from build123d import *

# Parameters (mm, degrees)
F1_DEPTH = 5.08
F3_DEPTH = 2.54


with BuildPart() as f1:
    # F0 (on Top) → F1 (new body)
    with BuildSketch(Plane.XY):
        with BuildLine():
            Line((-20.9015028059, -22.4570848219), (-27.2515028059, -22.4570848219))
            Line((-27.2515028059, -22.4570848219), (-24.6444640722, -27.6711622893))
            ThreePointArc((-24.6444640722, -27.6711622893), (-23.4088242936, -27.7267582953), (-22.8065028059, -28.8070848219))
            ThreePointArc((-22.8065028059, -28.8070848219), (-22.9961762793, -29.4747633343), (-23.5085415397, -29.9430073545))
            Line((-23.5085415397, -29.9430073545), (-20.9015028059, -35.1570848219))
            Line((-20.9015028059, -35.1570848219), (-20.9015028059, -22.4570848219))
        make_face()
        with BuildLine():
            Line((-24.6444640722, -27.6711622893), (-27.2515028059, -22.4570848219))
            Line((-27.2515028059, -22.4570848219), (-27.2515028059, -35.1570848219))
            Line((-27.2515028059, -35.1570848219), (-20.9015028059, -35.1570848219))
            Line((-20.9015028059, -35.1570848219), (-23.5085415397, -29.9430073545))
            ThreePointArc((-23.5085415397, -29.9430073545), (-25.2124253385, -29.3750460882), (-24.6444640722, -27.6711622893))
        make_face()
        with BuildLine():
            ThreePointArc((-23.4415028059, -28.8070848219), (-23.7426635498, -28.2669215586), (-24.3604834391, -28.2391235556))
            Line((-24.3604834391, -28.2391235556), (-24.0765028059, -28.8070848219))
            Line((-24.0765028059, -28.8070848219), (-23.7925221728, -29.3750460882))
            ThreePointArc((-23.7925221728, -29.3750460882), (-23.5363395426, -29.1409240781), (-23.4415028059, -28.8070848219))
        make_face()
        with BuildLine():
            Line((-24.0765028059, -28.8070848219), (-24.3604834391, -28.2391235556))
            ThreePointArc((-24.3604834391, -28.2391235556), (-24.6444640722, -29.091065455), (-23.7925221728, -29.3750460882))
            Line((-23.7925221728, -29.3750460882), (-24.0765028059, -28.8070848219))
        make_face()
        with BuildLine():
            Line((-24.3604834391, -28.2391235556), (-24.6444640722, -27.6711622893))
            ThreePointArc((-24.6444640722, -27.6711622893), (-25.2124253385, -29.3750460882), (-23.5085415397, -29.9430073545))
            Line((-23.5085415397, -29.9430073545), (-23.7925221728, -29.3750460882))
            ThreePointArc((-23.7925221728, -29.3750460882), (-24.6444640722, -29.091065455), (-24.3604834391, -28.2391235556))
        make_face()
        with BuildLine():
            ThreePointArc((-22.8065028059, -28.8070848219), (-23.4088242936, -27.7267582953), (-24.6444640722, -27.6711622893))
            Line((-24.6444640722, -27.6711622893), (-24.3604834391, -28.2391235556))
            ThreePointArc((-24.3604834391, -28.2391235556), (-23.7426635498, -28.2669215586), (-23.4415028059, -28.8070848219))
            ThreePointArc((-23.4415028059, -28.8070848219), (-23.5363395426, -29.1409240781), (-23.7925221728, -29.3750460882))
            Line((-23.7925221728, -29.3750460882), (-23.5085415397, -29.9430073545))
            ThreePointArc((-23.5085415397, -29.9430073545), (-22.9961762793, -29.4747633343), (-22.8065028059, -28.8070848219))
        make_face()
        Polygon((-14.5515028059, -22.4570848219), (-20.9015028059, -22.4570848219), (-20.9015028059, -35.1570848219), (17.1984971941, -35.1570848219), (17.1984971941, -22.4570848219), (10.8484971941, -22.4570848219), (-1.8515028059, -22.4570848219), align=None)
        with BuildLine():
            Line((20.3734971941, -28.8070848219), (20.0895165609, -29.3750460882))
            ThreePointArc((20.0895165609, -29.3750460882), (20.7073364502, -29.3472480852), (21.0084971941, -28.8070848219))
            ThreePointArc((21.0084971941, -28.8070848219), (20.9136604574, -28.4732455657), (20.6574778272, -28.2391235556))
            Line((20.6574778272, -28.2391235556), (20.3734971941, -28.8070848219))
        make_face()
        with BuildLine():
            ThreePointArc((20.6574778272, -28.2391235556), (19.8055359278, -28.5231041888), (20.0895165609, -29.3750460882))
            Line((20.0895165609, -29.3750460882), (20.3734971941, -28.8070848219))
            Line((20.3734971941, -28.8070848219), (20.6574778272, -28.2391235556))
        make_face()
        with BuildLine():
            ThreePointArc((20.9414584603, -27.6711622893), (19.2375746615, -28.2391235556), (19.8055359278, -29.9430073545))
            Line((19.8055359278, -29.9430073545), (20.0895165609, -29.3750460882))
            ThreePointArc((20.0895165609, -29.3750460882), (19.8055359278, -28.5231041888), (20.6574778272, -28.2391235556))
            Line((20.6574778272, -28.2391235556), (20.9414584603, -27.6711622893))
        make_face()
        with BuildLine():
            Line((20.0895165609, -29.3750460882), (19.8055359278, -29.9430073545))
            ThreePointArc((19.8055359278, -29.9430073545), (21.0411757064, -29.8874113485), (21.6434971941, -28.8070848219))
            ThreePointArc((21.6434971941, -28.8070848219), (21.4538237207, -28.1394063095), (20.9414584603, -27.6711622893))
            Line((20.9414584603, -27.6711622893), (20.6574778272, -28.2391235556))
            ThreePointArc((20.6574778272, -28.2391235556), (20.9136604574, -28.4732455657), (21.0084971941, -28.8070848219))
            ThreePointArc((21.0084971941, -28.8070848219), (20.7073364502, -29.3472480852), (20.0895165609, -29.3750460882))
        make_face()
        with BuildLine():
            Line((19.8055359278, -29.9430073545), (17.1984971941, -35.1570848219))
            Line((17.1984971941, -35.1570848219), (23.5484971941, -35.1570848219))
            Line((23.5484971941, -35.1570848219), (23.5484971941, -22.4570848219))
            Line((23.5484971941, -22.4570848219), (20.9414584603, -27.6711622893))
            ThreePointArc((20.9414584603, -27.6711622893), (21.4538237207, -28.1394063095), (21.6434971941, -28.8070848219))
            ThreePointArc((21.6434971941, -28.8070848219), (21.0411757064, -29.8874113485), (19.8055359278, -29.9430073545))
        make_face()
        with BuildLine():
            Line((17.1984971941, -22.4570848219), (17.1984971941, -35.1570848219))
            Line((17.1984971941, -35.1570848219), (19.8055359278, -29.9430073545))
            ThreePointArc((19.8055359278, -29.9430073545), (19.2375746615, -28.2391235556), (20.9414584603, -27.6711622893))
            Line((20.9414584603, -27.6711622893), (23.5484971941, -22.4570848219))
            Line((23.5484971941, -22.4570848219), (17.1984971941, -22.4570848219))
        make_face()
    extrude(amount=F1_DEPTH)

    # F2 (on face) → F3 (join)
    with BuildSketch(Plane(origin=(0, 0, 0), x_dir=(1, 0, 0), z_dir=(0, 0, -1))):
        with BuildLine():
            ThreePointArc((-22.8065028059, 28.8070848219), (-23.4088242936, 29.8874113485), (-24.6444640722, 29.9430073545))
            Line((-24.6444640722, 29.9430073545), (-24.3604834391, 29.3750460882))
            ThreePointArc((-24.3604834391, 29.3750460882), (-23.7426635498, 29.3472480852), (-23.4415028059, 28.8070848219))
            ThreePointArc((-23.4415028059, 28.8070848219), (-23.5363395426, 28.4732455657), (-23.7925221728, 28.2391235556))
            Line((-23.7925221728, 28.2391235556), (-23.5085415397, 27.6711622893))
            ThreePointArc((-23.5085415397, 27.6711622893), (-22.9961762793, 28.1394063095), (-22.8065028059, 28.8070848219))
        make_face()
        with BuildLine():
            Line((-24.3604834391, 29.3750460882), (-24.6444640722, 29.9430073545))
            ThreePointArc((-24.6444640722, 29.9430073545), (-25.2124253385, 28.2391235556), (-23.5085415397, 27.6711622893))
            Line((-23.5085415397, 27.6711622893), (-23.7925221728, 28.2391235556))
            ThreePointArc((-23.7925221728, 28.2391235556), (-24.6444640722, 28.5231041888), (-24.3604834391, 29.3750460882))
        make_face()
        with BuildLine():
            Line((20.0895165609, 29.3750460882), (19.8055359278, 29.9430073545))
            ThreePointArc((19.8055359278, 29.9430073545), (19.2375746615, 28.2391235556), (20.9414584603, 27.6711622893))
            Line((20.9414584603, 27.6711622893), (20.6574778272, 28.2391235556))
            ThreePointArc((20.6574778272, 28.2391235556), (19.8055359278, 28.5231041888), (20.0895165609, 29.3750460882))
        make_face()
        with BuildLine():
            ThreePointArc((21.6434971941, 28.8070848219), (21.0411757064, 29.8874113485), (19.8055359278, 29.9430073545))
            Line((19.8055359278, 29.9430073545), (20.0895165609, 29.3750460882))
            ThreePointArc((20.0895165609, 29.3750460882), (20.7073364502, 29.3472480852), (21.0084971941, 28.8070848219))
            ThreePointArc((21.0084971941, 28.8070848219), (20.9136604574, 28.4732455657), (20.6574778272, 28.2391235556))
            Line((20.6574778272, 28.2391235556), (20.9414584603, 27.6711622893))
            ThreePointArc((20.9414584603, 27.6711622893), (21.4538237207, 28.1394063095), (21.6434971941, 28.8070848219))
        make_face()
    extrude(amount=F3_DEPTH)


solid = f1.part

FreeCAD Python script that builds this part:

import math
import FreeCAD as App
import Part
import Sketcher

V = App.Vector
Q = App.Units.Quantity

doc = App.newDocument("Part")
body = doc.addObject("PartDesign::Body", "Body")

# Sketch on XY plane
sketch1 = doc.addObject("Sketcher::SketchObject", "Sketch")
body.addObject(sketch1)
sketch1.AttachmentSupport = (doc.XY_Plane, [""])
sketch1.MapMode = "FlatFace"
sketch1.addGeometry(Part.LineSegment(V(-27, -35, 0), V(24, -35, 0)), False)
sketch1.addGeometry(Part.LineSegment(V(24, -35, 0), V(24, -22, 0)), False)
sketch1.addGeometry(Part.LineSegment(V(24, -22, 0), V(-27, -22, 0)), False)
sketch1.addGeometry(Part.LineSegment(V(-27, -22, 0), V(-27, -35, 0)), False)
sketch1.addConstraint(Sketcher.Constraint("Coincident", 0, 2, 1, 1))
sketch1.addConstraint(Sketcher.Constraint("Coincident", 1, 2, 2, 1))
sketch1.addConstraint(Sketcher.Constraint("Coincident", 2, 2, 3, 1))
sketch1.addConstraint(Sketcher.Constraint("Coincident", 3, 2, 0, 1))
sketch1.addConstraint(Sketcher.Constraint("Horizontal", 0))
sketch1.addConstraint(Sketcher.Constraint("Vertical", 1))
sketch1.addConstraint(Sketcher.Constraint("Horizontal", 2))
sketch1.addConstraint(Sketcher.Constraint("Vertical", 3))
sketch1.addConstraint(Sketcher.Constraint("DistanceX", 0, 1, 0, 2, Q("2 in")))
sketch1.addConstraint(Sketcher.Constraint("DistanceY", 1, 1, 1, 2, Q("0.5 in")))
sketch1.addConstraint(Sketcher.Constraint("DistanceX", -1, 1, 0, 2, 23.548497))
sketch1.addConstraint(Sketcher.Constraint("DistanceY", 0, 2, -1, 1, 35.157085))
pad1 = doc.addObject("PartDesign::Pad", "Pad")
body.addObject(pad1)
pad1.Profile = sketch1
pad1.Length = Q("0.2 in")

# Sketch on XY plane
sketch2 = doc.addObject("Sketcher::SketchObject", "Sketch001")
body.addObject(sketch2)
sketch2.AttachmentSupport = (doc.XY_Plane, [""])
sketch2.MapMode = "FlatFace"
sketch2.addGeometry(Part.ArcOfCircle(Part.Circle(V(-24.1, -28.8, 0), V(0, 0, 1), 1.3), math.radians(-117), math.radians(0)), False)
sketch2.addGeometry(Part.ArcOfCircle(Part.Circle(V(-24.1, -28.8, 0), V(0, 0, 1), 1.3), math.radians(63), math.radians(243)), False)
sketch2.addGeometry(Part.ArcOfCircle(Part.Circle(V(-24.1, -28.8, 0), V(0, 0, 1), 1.3), math.radians(0), math.radians(63)), False)
sketch2.addGeometry(Part.ArcOfCircle(Part.Circle(V(-24.1, -28.8, 0), V(0, 0, 1), 0.6), math.radians(-117), math.radians(0)), False)
sketch2.addGeometry(Part.ArcOfCircle(Part.Circle(V(-24.1, -28.8, 0), V(0, 0, 1), 0.6), math.radians(0), math.radians(63)), False)
sketch2.addGeometry(Part.ArcOfCircle(Part.Circle(V(-24.1, -28.8, 0), V(0, 0, 1), 0.6), math.radians(63), math.radians(243)), False)
sketch2.addGeometry(Part.ArcOfCircle(Part.Circle(V(20.4, -28.8, 0), V(0, 0, 1), 1.3), math.radians(63), math.radians(243)), False)
sketch2.addGeometry(Part.ArcOfCircle(Part.Circle(V(20.4, -28.8, 0), V(0, 0, 1), 1.3), math.radians(0), math.radians(63)), False)
sketch2.addGeometry(Part.ArcOfCircle(Part.Circle(V(20.4, -28.8, 0), V(0, 0, 1), 1.3), math.radians(-117), math.radians(0)), False)
sketch2.addGeometry(Part.ArcOfCircle(Part.Circle(V(20.4, -28.8, 0), V(0, 0, 1), 0.6), math.radians(63), math.radians(243)), False)
sketch2.addGeometry(Part.ArcOfCircle(Part.Circle(V(20.4, -28.8, 0), V(0, 0, 1), 0.6), math.radians(-117), math.radians(0)), False)
sketch2.addGeometry(Part.ArcOfCircle(Part.Circle(V(20.4, -28.8, 0), V(0, 0, 1), 0.6), math.radians(0), math.radians(63)), False)
sketch2.addConstraint(Sketcher.Constraint("Tangent", 0, 1, 1, 2))
sketch2.addConstraint(Sketcher.Constraint("Tangent", 1, 1, 2, 2))
sketch2.addConstraint(Sketcher.Constraint("Tangent", 2, 1, 0, 2))
sketch2.addConstraint(Sketcher.Constraint("Tangent", 3, 2, 4, 1))
sketch2.addConstraint(Sketcher.Constraint("Tangent", 4, 2, 5, 1))
sketch2.addConstraint(Sketcher.Constraint("Tangent", 5, 2, 3, 1))
sketch2.addConstraint(Sketcher.Constraint("Tangent", 6, 1, 7, 2))
sketch2.addConstraint(Sketcher.Constraint("Tangent", 7, 1, 8, 2))
sketch2.addConstraint(Sketcher.Constraint("Tangent", 8, 1, 6, 2))
sketch2.addConstraint(Sketcher.Constraint("Tangent", 9, 2, 10, 1))
sketch2.addConstraint(Sketcher.Constraint("Tangent", 10, 2, 11, 1))
sketch2.addConstraint(Sketcher.Constraint("Tangent", 11, 2, 9, 1))
sketch2.addConstraint(Sketcher.Constraint("Coincident", 3, 3, 0, 3))
sketch2.addConstraint(Sketcher.Constraint("Coincident", 9, 3, 6, 3))
sketch2.addConstraint(Sketcher.Constraint("Equal", 2, 6))
sketch2.addConstraint(Sketcher.Constraint("Equal", 5, 9))
sketch2.addConstraint(Sketcher.Constraint("Horizontal", 5, 3, 6, 3))
sketch2.addConstraint(Sketcher.Constraint("Horizontal", 11, 3, 2, 1))
sketch2.addConstraint(Sketcher.Constraint("Horizontal", 2, 1, 3, 2))
sketch2.addConstraint(Sketcher.Constraint("Horizontal", 1, 1, 6, 1))
sketch2.addConstraint(Sketcher.Constraint("Horizontal", 3, 2, 7, 1))
sketch2.addConstraint(Sketcher.Constraint("Horizontal", 0, 1, 8, 1))
sketch2.addConstraint(Sketcher.Constraint("Horizontal", 5, 2, 9, 2))
sketch2.addConstraint(Sketcher.Constraint("Horizontal", 7, 1, 10, 2))
sketch2.addConstraint(Sketcher.Constraint("Horizontal", 4, 2, 11, 2))
sketch2.addConstraint(Sketcher.Constraint("Radius", 0, Q("0.05 in")))
sketch2.addConstraint(Sketcher.Constraint("Radius", 3, Q("0.025 in")))
sketch2.addConstraint(Sketcher.Constraint("DistanceX", 0, 3, 6, 3, Q("1.75 in")))
sketch2.addConstraint(Sketcher.Constraint("DistanceX", 1, 1, -1, 1, 23.508542))
sketch2.addConstraint(Sketcher.Constraint("DistanceX", 0, 1, 0, 3, 0.567961))
sketch2.addConstraint(Sketcher.Constraint("DistanceX", 0, 3, 1, 1, 0.567961))
sketch2.addConstraint(Sketcher.Constraint("DistanceX", 0, 3, 4, 2, 0.283981))
sketch2.addConstraint(Sketcher.Constraint("DistanceX", 5, 2, 0, 3, 0.283981))
sketch2.addConstraint(Sketcher.Constraint("DistanceY", 0, 3, -1, 1, 28.807085))
pad2 = doc.addObject("PartDesign::Pad", "Pad001")
body.addObject(pad2)
pad2.Profile = sketch2
pad2.Length = Q("0.1 in")
pad2.Reversed = True

doc.recompute()
